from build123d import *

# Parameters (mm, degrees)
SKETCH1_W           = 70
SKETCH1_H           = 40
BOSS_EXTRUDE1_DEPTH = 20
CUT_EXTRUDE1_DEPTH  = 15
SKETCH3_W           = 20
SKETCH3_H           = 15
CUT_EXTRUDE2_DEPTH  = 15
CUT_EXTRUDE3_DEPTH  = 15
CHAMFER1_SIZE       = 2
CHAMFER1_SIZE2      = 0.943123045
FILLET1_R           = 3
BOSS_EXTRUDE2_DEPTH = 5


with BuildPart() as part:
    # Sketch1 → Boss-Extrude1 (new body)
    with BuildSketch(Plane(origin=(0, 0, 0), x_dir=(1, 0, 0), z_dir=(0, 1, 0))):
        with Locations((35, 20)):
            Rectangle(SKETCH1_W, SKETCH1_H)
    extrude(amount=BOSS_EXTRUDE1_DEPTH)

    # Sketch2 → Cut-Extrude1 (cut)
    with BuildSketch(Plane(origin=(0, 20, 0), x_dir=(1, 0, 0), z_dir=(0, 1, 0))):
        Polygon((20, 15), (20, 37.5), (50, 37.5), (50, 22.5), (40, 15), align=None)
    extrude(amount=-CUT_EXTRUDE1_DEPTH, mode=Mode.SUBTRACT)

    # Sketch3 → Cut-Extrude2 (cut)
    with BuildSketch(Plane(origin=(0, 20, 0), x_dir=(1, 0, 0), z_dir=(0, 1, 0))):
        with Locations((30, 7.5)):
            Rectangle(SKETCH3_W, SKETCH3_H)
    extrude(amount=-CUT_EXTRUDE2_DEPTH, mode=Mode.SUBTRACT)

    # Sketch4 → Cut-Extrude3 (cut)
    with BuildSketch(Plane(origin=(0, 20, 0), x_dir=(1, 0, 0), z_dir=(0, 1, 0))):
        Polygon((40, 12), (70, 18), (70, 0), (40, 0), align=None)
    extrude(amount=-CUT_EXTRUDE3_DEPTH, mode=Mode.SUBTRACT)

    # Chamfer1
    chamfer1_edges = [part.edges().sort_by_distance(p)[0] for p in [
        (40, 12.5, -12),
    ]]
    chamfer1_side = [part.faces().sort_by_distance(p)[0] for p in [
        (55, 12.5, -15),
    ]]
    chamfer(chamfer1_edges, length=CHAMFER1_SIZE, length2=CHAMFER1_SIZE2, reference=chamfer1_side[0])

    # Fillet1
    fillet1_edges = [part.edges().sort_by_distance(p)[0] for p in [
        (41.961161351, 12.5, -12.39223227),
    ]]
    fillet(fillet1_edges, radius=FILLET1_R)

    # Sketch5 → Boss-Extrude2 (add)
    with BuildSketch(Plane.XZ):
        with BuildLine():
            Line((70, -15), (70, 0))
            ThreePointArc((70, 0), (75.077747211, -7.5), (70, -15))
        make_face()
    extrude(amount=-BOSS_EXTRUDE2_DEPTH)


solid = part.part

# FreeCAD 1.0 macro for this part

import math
import FreeCAD as App
import Part
import Sketcher
Q = App.Units.Quantity


def edges_at(feature, points):
    """Names of the edges that pass closest to the given points."""
    edges = feature.Shape.Edges
    near = lambda p: min(range(len(edges)), key=lambda i: edges[i].distToShape(Part.Vertex(*p))[0])
    return sorted({f"Edge{near(p) + 1}" for p in points})


def add_polygon(sketch, points):
    """Adds a closed chain of lines whose ends are joined by coincident constraints."""
    first, n = sketch.GeometryCount, len(points)
    for a, b in zip(points, points[1:] + points[:1]):
        sketch.addGeometry(Part.LineSegment(App.Vector(*a, 0), App.Vector(*b, 0)), False)
    for i in range(n):
        sketch.addConstraint(Sketcher.Constraint("Coincident", first + i, 2, first + (i + 1) % n, 1))

doc = App.newDocument("Part")
body = doc.addObject("PartDesign::Body", "Body")

sketch1 = doc.addObject("Sketcher::SketchObject", "Sketch")
body.addObject(sketch1)
sketch1.AttachmentSupport = (doc.XZ_Plane, [""])
sketch1.MapMode = "FlatFace"
add_polygon(sketch1, [(0, -40), (0, 0), (70, 0), (70, -40)])
sketch1.addConstraint([
    Sketcher.Constraint("Vertical", 0),
    Sketcher.Constraint("Horizontal", 1),
    Sketcher.Constraint("Vertical", 2),
    Sketcher.Constraint("Horizontal", 3),
    Sketcher.Constraint("Coincident", 0, 2, -1, 1),
    Sketcher.Constraint("DistanceX", 1, 1, 1, 2, Q("70 mm")),
    Sketcher.Constraint("DistanceY", 0, 1, 0, 2, Q("40 mm")),
])
pad1 = doc.addObject("PartDesign::Pad", "Pad")
body.addObject(pad1)
pad1.Profile = sketch1
pad1.Length = 20
pad1.Reversed = True

sketch2 = doc.addObject("Sketcher::SketchObject", "Sketch001")
body.addObject(sketch2)
sketch2.AttachmentSupport = (doc.XZ_Plane, [""])
sketch2.MapMode = "FlatFace"
sketch2.AttachmentOffset = App.Placement(App.Vector(0, 0, -20), App.Rotation())
add_polygon(sketch2, [(20, -38), (20, -15), (40, -15), (50, -22), (50, -38)])
sketch2.addConstraint([
    Sketcher.Constraint("Vertical", 0),
    Sketcher.Constraint("Horizontal", 1),
    Sketcher.Constraint("Vertical", 3),
    Sketcher.Constraint("Horizontal", 4),
    Sketcher.Constraint("DistanceX", 1, 1, 1, 2, Q("20 mm")),
    Sketcher.Constraint("DistanceX", 4, 2, 4, 1, Q("30 mm")),
    Sketcher.Constraint("DistanceY", 3, 2, 3, 1, Q("15 mm")),
    Sketcher.Constraint("DistanceY", 0, 1, 0, 2, Q("22.5 mm")),
    Sketcher.Constraint("DistanceX", -1, 1, 0, 2, Q("20 mm")),
    Sketcher.Constraint("DistanceY", 0, 2, -1, 1, Q("15 mm")),
])
pocket1 = doc.addObject("PartDesign::Pocket", "Pocket")
body.addObject(pocket1)
pocket1.Profile = sketch2
pocket1.Length = 15
pocket1.Reversed = True

sketch3 = doc.addObject("Sketcher::SketchObject", "Sketch002")
body.addObject(sketch3)
sketch3.AttachmentSupport = (doc.XZ_Plane, [""])
sketch3.MapMode = "FlatFace"
sketch3.AttachmentOffset = App.Placement(App.Vector(0, 0, -20), App.Rotation())
add_polygon(sketch3, [(20, -15), (20, 0), (40, 0), (40, -15)])
sketch3.addConstraint([
    Sketcher.Constraint("Vertical", 0),
    Sketcher.Constraint("Horizontal", 1),
    Sketcher.Constraint("Vertical", 2),
    Sketcher.Constraint("Horizontal", 3),
    Sketcher.Constraint("PointOnObject", 0, 2, -1),
    Sketcher.Constraint("DistanceX", 1, 1, 1, 2, Q("20 mm")),
    Sketcher.Constraint("DistanceY", 0, 1, 0, 2, Q("15 mm")),
    Sketcher.Constraint("DistanceX", -1, 1, 0, 2, Q("20 mm")),
])
pocket2 = doc.addObject("PartDesign::Pocket", "Pocket001")
body.addObject(pocket2)
pocket2.Profile = sketch3
pocket2.Length = 15
pocket2.Reversed = True

sketch4 = doc.addObject("Sketcher::SketchObject", "Sketch003")
body.addObject(sketch4)
sketch4.AttachmentSupport = (doc.XZ_Plane, [""])
sketch4.MapMode = "FlatFace"
sketch4.AttachmentOffset = App.Placement(App.Vector(0, 0, -20), App.Rotation())
add_polygon(sketch4, [(70, -18), (40, -12), (40, 0), (70, 0)])
sketch4.addConstraint([
    Sketcher.Constraint("Vertical", 1),
    Sketcher.Constraint("Horizontal", 2),
    Sketcher.Constraint("Vertical", 3),
    Sketcher.Constraint("PointOnObject", 1, 2, -1),
    Sketcher.Constraint("DistanceX", 2, 1, 2, 2, Q("30 mm")),
    Sketcher.Constraint("DistanceY", 1, 1, 1, 2, Q("12 mm")),
    Sketcher.Constraint("DistanceY", 3, 2, 3, 1, Q("18 mm")),
    Sketcher.Constraint("DistanceX", -1, 1, 0, 2, Q("40 mm")),
])
pocket3 = doc.addObject("PartDesign::Pocket", "Pocket002")
body.addObject(pocket3)
pocket3.Profile = sketch4
pocket3.Length = 15
pocket3.Reversed = True
doc.recompute()

chamfer = doc.addObject("PartDesign::Chamfer", "Chamfer")
body.addObject(chamfer)
chamfer.Base = (pocket3, edges_at(pocket3, [(40, 12.5, -12)]))
chamfer.ChamferType = "Two distances"
chamfer.Size = 2
chamfer.Size2 = 0.943123
doc.recompute()

fillet = doc.addObject("PartDesign::Fillet", "Fillet")
body.addObject(fillet)
fillet.Base = (chamfer, edges_at(chamfer, [(41.961, 12.5, -12.392)]))
fillet.Radius = 3

sketch5 = doc.addObject("Sketcher::SketchObject", "Sketch004")
body.addObject(sketch5)
sketch5.AttachmentSupport = (doc.XZ_Plane, [""])
sketch5.MapMode = "FlatFace"
sketch5.addGeometry([
    Part.LineSegment(App.Vector(70, 0, 0), App.Vector(70, -15, 0)),
    Part.ArcOfCircle(Part.Circle(App.Vector(67, -8, 0), App.Vector(0, 0, 1), 8), math.radians(-68), math.radians(68)),
], False)
sketch5.addConstraint([
    Sketcher.Constraint("Coincident", 0, 1, 1, 2),
    Sketcher.Constraint("Coincident", 1, 1, 0, 2),
    Sketcher.Constraint("Vertical", 0),
    Sketcher.Constraint("PointOnObject", 0, 1, -1),
    Sketcher.Constraint("DistanceY", 0, 2, 0, 1, Q("15 mm")),
    Sketcher.Constraint("DistanceX", -1, 1, 1, 3, Q("67 mm")),
    Sketcher.Constraint("DistanceX", -1, 1, 0, 1, Q("70 mm")),
])
pad2 = doc.addObject("PartDesign::Pad", "Pad001")
body.addObject(pad2)
pad2.Profile = sketch5
pad2.Length = 5
pad2.Reversed = True

doc.recompute()
